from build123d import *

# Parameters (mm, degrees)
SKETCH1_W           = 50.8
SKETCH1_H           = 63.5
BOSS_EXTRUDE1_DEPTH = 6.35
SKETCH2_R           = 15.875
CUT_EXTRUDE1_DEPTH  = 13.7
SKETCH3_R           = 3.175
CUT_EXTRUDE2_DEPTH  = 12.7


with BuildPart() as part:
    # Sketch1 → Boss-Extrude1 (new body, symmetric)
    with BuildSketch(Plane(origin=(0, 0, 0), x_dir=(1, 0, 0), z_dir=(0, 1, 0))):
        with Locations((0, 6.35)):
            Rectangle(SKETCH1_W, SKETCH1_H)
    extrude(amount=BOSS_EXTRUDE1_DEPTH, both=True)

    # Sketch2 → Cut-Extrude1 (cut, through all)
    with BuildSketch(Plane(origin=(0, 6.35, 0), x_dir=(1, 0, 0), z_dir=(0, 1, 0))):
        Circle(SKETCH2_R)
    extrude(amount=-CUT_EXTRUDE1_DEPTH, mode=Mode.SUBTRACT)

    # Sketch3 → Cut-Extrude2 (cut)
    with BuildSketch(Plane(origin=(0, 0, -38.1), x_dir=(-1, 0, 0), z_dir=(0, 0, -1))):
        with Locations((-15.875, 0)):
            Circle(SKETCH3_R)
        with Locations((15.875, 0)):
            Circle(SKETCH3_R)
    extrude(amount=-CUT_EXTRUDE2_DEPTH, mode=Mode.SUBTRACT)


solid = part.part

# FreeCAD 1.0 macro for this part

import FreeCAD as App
import Part
import Sketcher
from FreeCAD import Vector
Q = App.Units.Quantity

doc = App.newDocument("Part")
body = doc.addObject("PartDesign::Body", "Body")

# Sketch on XZ plane
sketch1 = body.newObject("Sketcher::SketchObject", "Sketch")
sketch1.AttachmentSupport = (doc.getObject("XZ_Plane"), [""])
sketch1.MapMode = "FlatFace"
sketch1.addGeometry(Part.LineSegment(Vector(-25, -38, 0), Vector(-25, 25, 0)), False)
sketch1.addGeometry(Part.LineSegment(Vector(-25, 25, 0), Vector(25, 25, 0)), False)
sketch1.addGeometry(Part.LineSegment(Vector(25, 25, 0), Vector(25, -38, 0)), False)
sketch1.addGeometry(Part.LineSegment(Vector(25, -38, 0), Vector(-25, -38, 0)), False)
sketch1.addConstraint(Sketcher.Constraint("Coincident", 0, 2, 1, 1))
sketch1.addConstraint(Sketcher.Constraint("Coincident", 1, 2, 2, 1))
sketch1.addConstraint(Sketcher.Constraint("Coincident", 2, 2, 3, 1))
sketch1.addConstraint(Sketcher.Constraint("Coincident", 3, 2, 0, 1))
sketch1.addConstraint(Sketcher.Constraint("Vertical", 0))
sketch1.addConstraint(Sketcher.Constraint("Horizontal", 1))
sketch1.addConstraint(Sketcher.Constraint("Vertical", 2))
sketch1.addConstraint(Sketcher.Constraint("Horizontal", 3))
sketch1.addConstraint(Sketcher.Constraint("DistanceX", 1, 1, 1, 2, Q("2 in")))
sketch1.addConstraint(Sketcher.Constraint("DistanceY", 0, 1, 0, 2, Q("2.5 in")))
sketch1.addConstraint(Sketcher.Constraint("DistanceX", 0, 2, -1, 1, Q("1 in")))
sketch1.addConstraint(Sketcher.Constraint("DistanceY", -1, 1, 0, 2, Q("1 in")))
pad1 = body.newObject("PartDesign::Pad", "Pad")
pad1.Profile = sketch1
pad1.Length = Q("0.5 in")
pad1.Midplane = True

# Sketch on XZ plane
sketch2 = body.newObject("Sketcher::SketchObject", "Sketch001")
sketch2.AttachmentSupport = (doc.getObject("XZ_Plane"), [""])
sketch2.MapMode = "FlatFace"
sketch2.AttachmentOffset = App.Placement(Vector(0, 0, -0.25 * 25.4), App.Rotation())
sketch2.addGeometry(Part.Circle(Vector(0, 0, 0), Vector(0, 0, 1), 16), False)
sketch2.addConstraint(Sketcher.Constraint("Coincident", 0, 3, -1, 1))
sketch2.addConstraint(Sketcher.Constraint("Diameter", 0, Q("1.25 in")))
pocket1 = body.newObject("PartDesign::Pocket", "Pocket")
pocket1.Profile = sketch2
pocket1.Type = "ThroughAll"
pocket1.Reversed = True

# Sketch on XY plane
sketch3 = body.newObject("Sketcher::SketchObject", "Sketch002")
sketch3.AttachmentSupport = (doc.getObject("XY_Plane"), [""])
sketch3.MapMode = "FlatFace"
sketch3.AttachmentOffset = App.Placement(Vector(0, 0, -1.5 * 25.4), App.Rotation())
sketch3.addGeometry(Part.Circle(Vector(15.9, 0, 0), Vector(0, 0, 1), 3.2), False)
sketch3.addGeometry(Part.Circle(Vector(-15.9, 0, 0), Vector(0, 0, 1), 3.2), False)
sketch3.addConstraint(Sketcher.Constraint("Equal", 0, 1))
sketch3.addConstraint(Sketcher.Constraint("Symmetric", 0, 3, 1, 3, -1, 1))
sketch3.addConstraint(Sketcher.Constraint("PointOnObject", 0, 3, -1))
sketch3.addConstraint(Sketcher.Constraint("Diameter", 0, Q("0.25 in")))
sketch3.addConstraint(Sketcher.Constraint("DistanceX", 1, 3, 0, 3, Q("1.25 in")))
pocket2 = body.newObject("PartDesign::Pocket", "Pocket001")
pocket2.Profile = sketch3
pocket2.Length = Q("0.5 in")
pocket2.Reversed = True

doc.recompute()
